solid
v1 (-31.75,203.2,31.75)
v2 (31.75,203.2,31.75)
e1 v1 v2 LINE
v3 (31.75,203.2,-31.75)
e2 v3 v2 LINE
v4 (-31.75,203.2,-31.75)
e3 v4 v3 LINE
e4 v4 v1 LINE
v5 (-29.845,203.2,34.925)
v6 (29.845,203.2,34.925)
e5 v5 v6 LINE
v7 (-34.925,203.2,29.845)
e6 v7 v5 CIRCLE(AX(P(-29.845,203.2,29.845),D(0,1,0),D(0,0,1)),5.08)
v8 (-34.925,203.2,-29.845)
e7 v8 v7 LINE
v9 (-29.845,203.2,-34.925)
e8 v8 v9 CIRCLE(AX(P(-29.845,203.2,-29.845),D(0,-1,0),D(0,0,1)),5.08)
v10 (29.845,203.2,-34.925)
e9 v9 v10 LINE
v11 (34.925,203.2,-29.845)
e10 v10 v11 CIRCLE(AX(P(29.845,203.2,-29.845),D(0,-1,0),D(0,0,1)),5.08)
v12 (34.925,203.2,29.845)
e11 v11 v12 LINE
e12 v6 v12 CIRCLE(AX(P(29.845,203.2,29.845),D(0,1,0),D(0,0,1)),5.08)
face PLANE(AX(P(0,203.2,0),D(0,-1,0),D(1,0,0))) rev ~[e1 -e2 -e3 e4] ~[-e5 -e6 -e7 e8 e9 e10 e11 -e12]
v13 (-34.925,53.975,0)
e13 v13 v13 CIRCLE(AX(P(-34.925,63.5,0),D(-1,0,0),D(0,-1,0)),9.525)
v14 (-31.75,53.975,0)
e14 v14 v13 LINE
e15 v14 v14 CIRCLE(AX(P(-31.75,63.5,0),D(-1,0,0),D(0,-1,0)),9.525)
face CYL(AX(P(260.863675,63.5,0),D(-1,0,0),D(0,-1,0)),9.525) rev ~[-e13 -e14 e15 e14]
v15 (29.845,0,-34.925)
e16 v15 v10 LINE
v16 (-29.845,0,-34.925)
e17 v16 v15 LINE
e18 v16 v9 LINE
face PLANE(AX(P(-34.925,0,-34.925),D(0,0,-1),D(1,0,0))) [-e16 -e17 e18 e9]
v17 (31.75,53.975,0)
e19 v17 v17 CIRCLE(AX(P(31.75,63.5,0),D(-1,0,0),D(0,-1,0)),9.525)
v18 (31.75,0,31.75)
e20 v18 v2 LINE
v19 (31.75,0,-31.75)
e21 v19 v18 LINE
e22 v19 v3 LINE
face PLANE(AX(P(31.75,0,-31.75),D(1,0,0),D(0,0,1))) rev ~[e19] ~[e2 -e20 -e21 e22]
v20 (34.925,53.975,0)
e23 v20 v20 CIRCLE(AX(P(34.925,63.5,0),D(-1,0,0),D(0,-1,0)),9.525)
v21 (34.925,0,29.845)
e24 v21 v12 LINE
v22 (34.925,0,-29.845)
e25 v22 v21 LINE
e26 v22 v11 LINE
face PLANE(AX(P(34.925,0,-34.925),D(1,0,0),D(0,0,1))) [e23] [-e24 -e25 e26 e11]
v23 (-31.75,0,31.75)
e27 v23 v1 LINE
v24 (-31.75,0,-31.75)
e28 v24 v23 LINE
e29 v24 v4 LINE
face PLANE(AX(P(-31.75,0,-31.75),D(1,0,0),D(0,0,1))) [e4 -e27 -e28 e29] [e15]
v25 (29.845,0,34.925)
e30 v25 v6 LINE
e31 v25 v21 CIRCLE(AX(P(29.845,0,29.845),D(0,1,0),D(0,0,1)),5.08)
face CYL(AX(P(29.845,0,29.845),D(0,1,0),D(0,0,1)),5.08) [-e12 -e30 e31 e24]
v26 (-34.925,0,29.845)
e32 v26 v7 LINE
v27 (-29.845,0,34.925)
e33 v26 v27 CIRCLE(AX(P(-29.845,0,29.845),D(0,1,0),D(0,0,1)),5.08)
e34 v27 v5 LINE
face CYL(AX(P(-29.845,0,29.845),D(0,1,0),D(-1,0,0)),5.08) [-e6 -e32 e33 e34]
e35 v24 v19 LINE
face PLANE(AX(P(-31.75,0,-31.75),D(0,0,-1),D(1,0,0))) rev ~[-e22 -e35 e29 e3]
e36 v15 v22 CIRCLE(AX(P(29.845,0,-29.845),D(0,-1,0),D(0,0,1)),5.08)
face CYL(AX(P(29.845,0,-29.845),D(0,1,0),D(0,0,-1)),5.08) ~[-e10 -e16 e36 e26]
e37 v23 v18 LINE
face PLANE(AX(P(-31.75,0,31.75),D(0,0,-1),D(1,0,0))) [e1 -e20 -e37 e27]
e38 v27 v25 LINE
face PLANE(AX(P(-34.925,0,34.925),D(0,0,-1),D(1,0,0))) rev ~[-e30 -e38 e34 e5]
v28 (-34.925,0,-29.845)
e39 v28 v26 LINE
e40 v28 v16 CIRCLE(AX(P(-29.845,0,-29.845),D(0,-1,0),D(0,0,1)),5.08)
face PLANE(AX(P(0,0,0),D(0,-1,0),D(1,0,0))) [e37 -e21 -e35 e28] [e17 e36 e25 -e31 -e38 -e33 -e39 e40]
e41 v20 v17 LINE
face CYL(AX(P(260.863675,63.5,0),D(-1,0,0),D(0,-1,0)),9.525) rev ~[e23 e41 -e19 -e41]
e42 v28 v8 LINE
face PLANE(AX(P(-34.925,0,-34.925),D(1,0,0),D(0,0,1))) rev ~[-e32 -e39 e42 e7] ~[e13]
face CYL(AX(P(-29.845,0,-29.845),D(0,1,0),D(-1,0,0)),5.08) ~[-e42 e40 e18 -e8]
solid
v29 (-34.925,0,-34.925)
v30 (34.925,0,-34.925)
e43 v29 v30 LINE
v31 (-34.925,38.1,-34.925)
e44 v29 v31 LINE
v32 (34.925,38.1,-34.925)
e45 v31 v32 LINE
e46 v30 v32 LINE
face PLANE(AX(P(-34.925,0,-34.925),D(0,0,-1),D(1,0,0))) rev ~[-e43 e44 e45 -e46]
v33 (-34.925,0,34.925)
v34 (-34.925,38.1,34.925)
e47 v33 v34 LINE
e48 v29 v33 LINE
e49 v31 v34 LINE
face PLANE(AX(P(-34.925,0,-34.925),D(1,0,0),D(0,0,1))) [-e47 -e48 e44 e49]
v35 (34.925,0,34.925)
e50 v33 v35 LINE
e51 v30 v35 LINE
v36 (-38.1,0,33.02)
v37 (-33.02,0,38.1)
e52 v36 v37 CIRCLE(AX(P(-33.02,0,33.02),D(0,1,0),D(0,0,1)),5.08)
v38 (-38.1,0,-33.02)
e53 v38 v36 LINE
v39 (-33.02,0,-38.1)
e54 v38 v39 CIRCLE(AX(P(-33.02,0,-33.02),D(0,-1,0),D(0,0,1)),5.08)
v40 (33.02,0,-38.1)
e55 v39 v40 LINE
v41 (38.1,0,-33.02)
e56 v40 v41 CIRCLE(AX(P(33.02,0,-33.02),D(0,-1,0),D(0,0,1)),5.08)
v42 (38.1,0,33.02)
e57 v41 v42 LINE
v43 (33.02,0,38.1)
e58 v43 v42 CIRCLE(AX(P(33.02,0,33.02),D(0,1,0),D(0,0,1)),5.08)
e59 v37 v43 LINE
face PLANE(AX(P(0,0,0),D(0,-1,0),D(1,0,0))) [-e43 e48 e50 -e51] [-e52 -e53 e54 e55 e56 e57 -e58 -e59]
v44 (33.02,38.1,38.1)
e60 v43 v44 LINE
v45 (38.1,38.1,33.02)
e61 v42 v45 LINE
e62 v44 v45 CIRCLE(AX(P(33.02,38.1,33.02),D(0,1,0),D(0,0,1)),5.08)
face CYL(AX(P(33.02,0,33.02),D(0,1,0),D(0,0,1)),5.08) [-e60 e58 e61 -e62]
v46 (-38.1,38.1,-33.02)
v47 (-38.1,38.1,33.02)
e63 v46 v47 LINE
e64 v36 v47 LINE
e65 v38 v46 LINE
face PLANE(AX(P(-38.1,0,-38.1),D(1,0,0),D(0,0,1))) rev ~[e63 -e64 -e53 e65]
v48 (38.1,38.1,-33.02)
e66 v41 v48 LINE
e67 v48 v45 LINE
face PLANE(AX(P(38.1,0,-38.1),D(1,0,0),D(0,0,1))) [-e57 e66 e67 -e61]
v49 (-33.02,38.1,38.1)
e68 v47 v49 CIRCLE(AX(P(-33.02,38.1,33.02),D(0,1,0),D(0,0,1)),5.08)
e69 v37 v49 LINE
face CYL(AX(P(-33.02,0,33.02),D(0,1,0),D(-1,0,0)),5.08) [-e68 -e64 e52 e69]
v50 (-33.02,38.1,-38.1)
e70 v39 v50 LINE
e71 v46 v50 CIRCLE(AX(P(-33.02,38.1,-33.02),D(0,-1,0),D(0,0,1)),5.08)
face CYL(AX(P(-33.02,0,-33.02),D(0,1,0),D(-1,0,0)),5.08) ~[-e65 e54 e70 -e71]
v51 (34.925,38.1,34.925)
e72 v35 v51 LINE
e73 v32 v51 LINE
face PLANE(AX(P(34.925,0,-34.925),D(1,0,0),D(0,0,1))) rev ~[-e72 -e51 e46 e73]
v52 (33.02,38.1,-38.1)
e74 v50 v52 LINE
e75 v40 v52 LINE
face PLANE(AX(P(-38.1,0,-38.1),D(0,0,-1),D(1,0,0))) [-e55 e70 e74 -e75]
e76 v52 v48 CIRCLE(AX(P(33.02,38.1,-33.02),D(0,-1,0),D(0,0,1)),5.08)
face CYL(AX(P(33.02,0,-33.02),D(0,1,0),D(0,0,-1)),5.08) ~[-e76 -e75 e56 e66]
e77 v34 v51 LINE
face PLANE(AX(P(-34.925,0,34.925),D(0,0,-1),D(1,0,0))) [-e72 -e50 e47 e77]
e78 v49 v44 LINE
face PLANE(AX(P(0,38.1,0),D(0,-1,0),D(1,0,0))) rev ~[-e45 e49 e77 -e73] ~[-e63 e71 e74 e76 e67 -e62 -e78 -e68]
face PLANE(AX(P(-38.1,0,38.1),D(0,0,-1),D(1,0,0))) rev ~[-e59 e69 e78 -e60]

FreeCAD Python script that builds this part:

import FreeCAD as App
import Part
import Sketcher
from FreeCAD import Vector
Q = App.Units.Quantity


def edges_at(feature, points):
    """Names of the edges that pass closest to the given points."""
    edges = feature.Shape.Edges
    near = lambda p: min(range(len(edges)), key=lambda i: edges[i].distToShape(Part.Vertex(*p))[0])
    return sorted({f"Edge{near(p) + 1}" for p in points})


def add_polygon(sketch, points):
    """Adds a closed chain of lines whose ends are joined by coincident constraints."""
    first, n = sketch.GeometryCount, len(points)
    for a, b in zip(points, points[1:] + points[:1]):
        sketch.addGeometry(Part.LineSegment(App.Vector(*a, 0), App.Vector(*b, 0)), False)
    for i in range(n):
        sketch.addConstraint(Sketcher.Constraint("Coincident", first + i, 2, first + (i + 1) % n, 1))

doc = App.newDocument("Part")
params = doc.addObject("Spreadsheet::Sheet", "Params")
for row, (alias, value) in enumerate([
    ("sketch1_width", "2.5 in"),
    ("sketch1_width2", "2.75 in"),
    ("pad1_length", "8 in"),
    ("fillet_radius", "0.2 in"),
    ("sketch2_diameter", "0.75 in"),
    ("hole_diameter", "0.75 in"),
    ("sketch3_width", "3 in"),
    ("sketch3_width2", "2.75 in"),
    ("pad2_length", "1.5 in"),
    ("fillet2_radius", "0.2 in"),
], start=1):
    params.set(f"A{row}", alias)
    params.set(f"B{row}", "=" + value)
    params.setAlias(f"B{row}", alias)

body = doc.addObject("PartDesign::Body", "Body")

sketch1 = body.newObject("Sketcher::SketchObject", "Sketch")
sketch1.AttachmentSupport = (doc.getObject("XZ_Plane"), [""])
sketch1.MapMode = "FlatFace"
add_polygon(sketch1, [(-35, 35), (-35, -35), (35, -35), (35, 35)])
add_polygon(sketch1, [(32, -32), (-32, -32), (-32, 32), (32, 32)])
sketch1.addConstraint([
    Sketcher.Constraint("Vertical", 0),
    Sketcher.Constraint("Horizontal", 1),
    Sketcher.Constraint("Vertical", 2),
    Sketcher.Constraint("Horizontal", 3),
    Sketcher.Constraint("Horizontal", 4),
    Sketcher.Constraint("Vertical", 5),
    Sketcher.Constraint("Horizontal", 6),
    Sketcher.Constraint("Vertical", 7),
    Sketcher.Constraint("Symmetric", 0, 2, 2, 2, -1, 1),
    Sketcher.Constraint("Symmetric", 4, 2, 6, 2, -1, 1),
    Sketcher.Constraint("Equal", 3, 0),
    Sketcher.Constraint("Equal", 6, 5),
    Sketcher.Constraint("DistanceX", 4, 2, 4, 1, Q("2.5 in")),
    Sketcher.Constraint("DistanceX", 1, 1, 1, 2, Q("2.75 in")),
])
sketch1.setExpression("Constraints[20]", "Params.sketch1_width")
sketch1.setExpression("Constraints[21]", "Params.sketch1_width2")
pad1 = body.newObject("PartDesign::Pad", "Pad")
pad1.Profile = sketch1
pad1.setExpression("Length", "Params.pad1_length")
pad1.Reversed = True
doc.recompute()

fillet = body.newObject("PartDesign::Fillet", "Fillet")
fillet.Base = (pad1, edges_at(pad1, [
    (34.925, 101.6, 34.925),
    (-34.925, 101.6, 34.925),
    (34.925, 101.6, -34.925),
    (-34.925, 101.6, -34.925),
]))
fillet.setExpression("Radius", "Params.fillet_radius")

sketch2 = body.newObject("Sketcher::SketchObject", "Sketch001")
sketch2.AttachmentSupport = (doc.getObject("YZ_Plane"), [""])
sketch2.MapMode = "FlatFace"
sketch2.AttachmentOffset = App.Placement(Vector(0, 0, 1.375 * 25.4), App.Rotation())
sketch2.addGeometry(Part.Circle(Vector(64, 0, 0), Vector(0, 0, 1), 10), False)
sketch2.addConstraint([
    Sketcher.Constraint("PointOnObject", 0, 3, -1),
    Sketcher.Constraint("Diameter", 0, Q("0.75 in")),
    Sketcher.Constraint("DistanceX", -1, 1, 0, 3, Q("2.5 in")),
])
sketch2.setExpression("Constraints[1]", "Params.sketch2_diameter")
doc.recompute()
hole = body.newObject("PartDesign::Hole", "Hole")
hole.Profile = sketch2
hole.ThreadType = "None"
hole.setExpression("Diameter", "Params.hole_diameter")
hole.DepthType = "ThroughAll"
body2 = doc.addObject("PartDesign::Body", "Body001")

sketch3 = body2.newObject("Sketcher::SketchObject", "Sketch002")
sketch3.AttachmentSupport = (doc.getObject("XZ_Plane001"), [""])
sketch3.MapMode = "FlatFace"
add_polygon(sketch3, [(-38, 38), (-38, -38), (38, -38), (38, 38)])
add_polygon(sketch3, [(35, -35), (-35, -35), (-35, 35), (35, 35)])
sketch3.addConstraint([
    Sketcher.Constraint("Vertical", 0),
    Sketcher.Constraint("Horizontal", 1),
    Sketcher.Constraint("Vertical", 2),
    Sketcher.Constraint("Horizontal", 3),
    Sketcher.Constraint("Horizontal", 4),
    Sketcher.Constraint("Vertical", 5),
    Sketcher.Constraint("Horizontal", 6),
    Sketcher.Constraint("Vertical", 7),
    Sketcher.Constraint("Symmetric", 0, 2, 2, 2, -1, 1),
    Sketcher.Constraint("Symmetric", 4, 2, 6, 2, -1, 1),
    Sketcher.Constraint("Equal", 3, 0),
    Sketcher.Constraint("Equal", 6, 5),
    Sketcher.Constraint("DistanceX", 1, 1, 1, 2, Q("3 in")),
    Sketcher.Constraint("DistanceX", 4, 2, 4, 1, Q("2.75 in")),
])
sketch3.setExpression("Constraints[20]", "Params.sketch3_width")
sketch3.setExpression("Constraints[21]", "Params.sketch3_width2")
pad2 = body2.newObject("PartDesign::Pad", "Pad001")
pad2.Profile = sketch3
pad2.setExpression("Length", "Params.pad2_length")
pad2.Reversed = True
doc.recompute()

fillet2 = body2.newObject("PartDesign::Fillet", "Fillet001")
fillet2.Base = (pad2, edges_at(pad2, [
    (38.1, 19.05, 38.1),
    (-38.1, 19.05, 38.1),
    (38.1, 19.05, -38.1),
    (-38.1, 19.05, -38.1),
]))
fillet2.setExpression("Radius", "Params.fillet2_radius")

doc.recompute()
